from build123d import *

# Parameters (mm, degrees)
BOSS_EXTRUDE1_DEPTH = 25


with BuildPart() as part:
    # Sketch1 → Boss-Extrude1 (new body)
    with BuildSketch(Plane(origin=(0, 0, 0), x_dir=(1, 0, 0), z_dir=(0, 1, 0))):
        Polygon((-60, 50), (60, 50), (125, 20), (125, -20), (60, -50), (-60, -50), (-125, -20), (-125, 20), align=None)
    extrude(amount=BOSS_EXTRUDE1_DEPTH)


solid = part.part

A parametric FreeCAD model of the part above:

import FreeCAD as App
import Part
import Sketcher

V = App.Vector
Q = App.Units.Quantity


def add_polygon(sketch, points):
    """Adds a closed chain of lines whose ends are joined by coincident constraints."""
    first, n = sketch.GeometryCount, len(points)
    for a, b in zip(points, points[1:] + points[:1]):
        sketch.addGeometry(Part.LineSegment(App.Vector(*a, 0), App.Vector(*b, 0)), False)
    for i in range(n):
        sketch.addConstraint(Sketcher.Constraint("Coincident", first + i, 2, first + (i + 1) % n, 1))

doc = App.newDocument("Part")
body = doc.addObject("PartDesign::Body", "Body")

sketch1 = body.newObject("Sketcher::SketchObject", "Sketch")
sketch1.AttachmentSupport = (doc.getObject("XZ_Plane"), [""])
sketch1.MapMode = "FlatFace"
add_polygon(sketch1, [(60, -50), (-60, -50), (-125, -20), (-125, 20), (-60, 50), (60, 50), (125, 20), (125, -20)])
sketch1.addConstraint([
    Sketcher.Constraint("Horizontal", 0),
    Sketcher.Constraint("Vertical", 2),
    Sketcher.Constraint("Horizontal", 4),
    Sketcher.Constraint("Vertical", 6),
    Sketcher.Constraint("Symmetric", 0, 2, 4, 2, -1, 1),
    Sketcher.Constraint("Symmetric", 1, 2, 5, 2, -1, 1),
    Sketcher.Constraint("Parallel", 3, 7),
    Sketcher.Constraint("Horizontal", 2, 2, 5, 2),
    Sketcher.Constraint("Horizontal", 1, 2, 6, 2),
    Sketcher.Constraint("Vertical", 0, 2, 3, 2),
    Sketcher.Constraint("DistanceX", 0, 2, 0, 1, Q("120 mm")),
    Sketcher.Constraint("DistanceY", 2, 1, 2, 2, Q("40 mm")),
    Sketcher.Constraint("DistanceY", 0, 2, -1, 1, Q("50 mm")),
    Sketcher.Constraint("DistanceX", 1, 2, -1, 1, Q("125 mm")),
])
pad1 = body.newObject("PartDesign::Pad", "Pad")
pad1.Profile = sketch1
pad1.Length = 25
pad1.Reversed = True

doc.recompute()
